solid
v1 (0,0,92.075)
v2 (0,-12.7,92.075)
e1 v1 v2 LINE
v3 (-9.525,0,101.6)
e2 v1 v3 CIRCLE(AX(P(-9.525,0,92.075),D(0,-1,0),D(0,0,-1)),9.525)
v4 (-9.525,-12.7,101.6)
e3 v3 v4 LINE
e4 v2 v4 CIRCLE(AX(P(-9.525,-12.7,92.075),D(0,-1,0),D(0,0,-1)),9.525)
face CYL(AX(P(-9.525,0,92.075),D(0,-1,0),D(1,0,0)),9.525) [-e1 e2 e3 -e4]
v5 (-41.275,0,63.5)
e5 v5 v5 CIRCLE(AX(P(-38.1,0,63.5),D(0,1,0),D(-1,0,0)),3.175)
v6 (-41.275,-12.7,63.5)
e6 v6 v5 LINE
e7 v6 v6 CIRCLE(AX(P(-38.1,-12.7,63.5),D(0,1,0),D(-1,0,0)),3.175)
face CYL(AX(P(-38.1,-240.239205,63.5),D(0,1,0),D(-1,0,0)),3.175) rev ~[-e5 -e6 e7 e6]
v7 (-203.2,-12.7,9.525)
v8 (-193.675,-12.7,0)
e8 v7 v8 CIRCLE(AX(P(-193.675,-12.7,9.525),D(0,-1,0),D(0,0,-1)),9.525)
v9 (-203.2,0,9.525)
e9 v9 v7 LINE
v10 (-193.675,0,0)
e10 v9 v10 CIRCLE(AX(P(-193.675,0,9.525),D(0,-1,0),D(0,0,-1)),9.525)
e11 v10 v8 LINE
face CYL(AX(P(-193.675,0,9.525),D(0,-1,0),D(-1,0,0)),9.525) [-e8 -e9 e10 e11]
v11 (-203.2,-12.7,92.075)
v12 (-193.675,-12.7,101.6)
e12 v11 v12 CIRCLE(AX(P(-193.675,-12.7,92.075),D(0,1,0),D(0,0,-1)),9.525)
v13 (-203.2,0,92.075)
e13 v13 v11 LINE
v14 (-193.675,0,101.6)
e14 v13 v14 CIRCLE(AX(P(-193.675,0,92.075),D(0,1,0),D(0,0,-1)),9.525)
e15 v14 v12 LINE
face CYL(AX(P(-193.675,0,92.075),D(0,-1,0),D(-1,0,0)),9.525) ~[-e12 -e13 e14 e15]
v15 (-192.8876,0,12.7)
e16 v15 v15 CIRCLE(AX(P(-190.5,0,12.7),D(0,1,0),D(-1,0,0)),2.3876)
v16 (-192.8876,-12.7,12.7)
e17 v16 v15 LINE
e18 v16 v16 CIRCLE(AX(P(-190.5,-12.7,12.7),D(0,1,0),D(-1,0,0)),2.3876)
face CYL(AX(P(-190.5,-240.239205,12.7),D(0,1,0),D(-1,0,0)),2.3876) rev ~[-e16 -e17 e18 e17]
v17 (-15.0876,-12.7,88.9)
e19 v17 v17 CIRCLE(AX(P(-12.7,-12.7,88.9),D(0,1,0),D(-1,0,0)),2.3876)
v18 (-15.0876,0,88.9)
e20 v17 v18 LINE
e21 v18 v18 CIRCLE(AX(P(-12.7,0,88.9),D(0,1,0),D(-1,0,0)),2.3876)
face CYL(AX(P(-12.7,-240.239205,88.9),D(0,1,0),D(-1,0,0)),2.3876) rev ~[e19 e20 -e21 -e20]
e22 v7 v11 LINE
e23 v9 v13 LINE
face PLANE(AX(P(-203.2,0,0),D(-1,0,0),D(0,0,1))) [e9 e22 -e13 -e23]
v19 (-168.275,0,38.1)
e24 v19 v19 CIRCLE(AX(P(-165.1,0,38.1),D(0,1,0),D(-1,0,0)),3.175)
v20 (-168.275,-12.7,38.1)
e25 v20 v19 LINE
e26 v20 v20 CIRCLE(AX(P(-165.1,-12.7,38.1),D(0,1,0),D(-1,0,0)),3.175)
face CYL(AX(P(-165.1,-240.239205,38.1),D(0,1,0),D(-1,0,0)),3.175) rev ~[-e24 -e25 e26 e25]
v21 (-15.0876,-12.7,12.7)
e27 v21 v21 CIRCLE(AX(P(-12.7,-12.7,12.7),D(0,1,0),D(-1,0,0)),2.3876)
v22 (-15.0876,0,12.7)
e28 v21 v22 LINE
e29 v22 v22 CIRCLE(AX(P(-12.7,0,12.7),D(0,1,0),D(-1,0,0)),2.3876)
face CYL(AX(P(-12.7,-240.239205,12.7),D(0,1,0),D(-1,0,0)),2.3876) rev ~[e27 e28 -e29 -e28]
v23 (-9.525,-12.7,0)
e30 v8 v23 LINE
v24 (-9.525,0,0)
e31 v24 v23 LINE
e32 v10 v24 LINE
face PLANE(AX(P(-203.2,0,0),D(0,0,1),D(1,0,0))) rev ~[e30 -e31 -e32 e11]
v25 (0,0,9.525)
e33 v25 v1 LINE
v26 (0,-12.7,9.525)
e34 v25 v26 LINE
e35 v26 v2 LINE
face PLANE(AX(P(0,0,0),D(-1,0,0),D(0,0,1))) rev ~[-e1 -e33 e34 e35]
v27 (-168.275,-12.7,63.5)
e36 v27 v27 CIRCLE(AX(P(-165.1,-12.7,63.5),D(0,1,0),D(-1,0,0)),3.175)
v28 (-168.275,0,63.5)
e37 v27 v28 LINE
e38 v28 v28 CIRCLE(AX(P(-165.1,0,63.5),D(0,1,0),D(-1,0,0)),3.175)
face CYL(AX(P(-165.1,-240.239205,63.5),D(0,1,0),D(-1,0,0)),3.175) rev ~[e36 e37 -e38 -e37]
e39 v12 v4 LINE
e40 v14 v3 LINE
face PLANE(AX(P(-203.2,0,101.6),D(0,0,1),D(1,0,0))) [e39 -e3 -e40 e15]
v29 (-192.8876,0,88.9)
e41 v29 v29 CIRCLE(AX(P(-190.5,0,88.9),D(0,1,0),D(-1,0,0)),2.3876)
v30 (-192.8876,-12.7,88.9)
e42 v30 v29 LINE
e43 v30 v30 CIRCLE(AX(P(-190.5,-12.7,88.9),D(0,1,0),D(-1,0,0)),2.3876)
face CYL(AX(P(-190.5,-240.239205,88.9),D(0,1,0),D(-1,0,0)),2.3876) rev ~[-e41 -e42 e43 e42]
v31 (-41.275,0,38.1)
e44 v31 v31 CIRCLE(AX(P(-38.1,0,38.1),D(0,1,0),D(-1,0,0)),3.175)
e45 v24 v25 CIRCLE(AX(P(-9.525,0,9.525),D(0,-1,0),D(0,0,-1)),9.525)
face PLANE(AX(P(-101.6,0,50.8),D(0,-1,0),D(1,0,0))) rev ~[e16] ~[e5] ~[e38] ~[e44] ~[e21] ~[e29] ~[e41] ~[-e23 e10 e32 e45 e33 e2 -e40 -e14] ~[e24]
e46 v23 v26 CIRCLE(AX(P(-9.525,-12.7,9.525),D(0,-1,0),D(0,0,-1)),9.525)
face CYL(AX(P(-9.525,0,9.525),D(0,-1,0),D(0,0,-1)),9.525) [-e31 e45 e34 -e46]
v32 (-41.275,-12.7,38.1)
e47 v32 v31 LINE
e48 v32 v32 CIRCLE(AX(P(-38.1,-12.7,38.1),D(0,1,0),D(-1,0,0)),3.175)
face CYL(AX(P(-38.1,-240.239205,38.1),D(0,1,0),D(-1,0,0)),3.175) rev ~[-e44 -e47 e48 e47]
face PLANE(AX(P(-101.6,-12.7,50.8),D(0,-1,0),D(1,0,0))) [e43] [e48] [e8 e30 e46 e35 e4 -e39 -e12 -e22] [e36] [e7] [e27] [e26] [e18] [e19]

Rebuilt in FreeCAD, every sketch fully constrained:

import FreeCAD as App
import Part
import Sketcher

V = App.Vector
Q = App.Units.Quantity


def edges_at(feature, points):
    """Names of the edges that pass closest to the given points."""
    edges = feature.Shape.Edges
    near = lambda p: min(range(len(edges)), key=lambda i: edges[i].distToShape(Part.Vertex(*p))[0])
    return sorted({f"Edge{near(p) + 1}" for p in points})

doc = App.newDocument("Part")
params = doc.addObject("Spreadsheet::Sheet", "Params")
for row, (alias, value) in enumerate([
    ("sketch1_width", "8 in"),
    ("sketch1_height", "4 in"),
    ("pad1_length", "0.5 in"),
    ("fillet_radius", "0.375 in"),
    ("sketch2_diameter", "0.188 in"),
    ("hole_diameter", "0.188 in"),
    ("sketch3_diameter", "0.25 in"),
    ("hole2_diameter", "0.25 in"),
], start=1):
    params.set(f"A{row}", alias)
    params.set(f"B{row}", "=" + value)
    params.setAlias(f"B{row}", alias)

body = doc.addObject("PartDesign::Body", "Body")

sketch1 = body.newObject("Sketcher::SketchObject", "Sketch")
sketch1.AttachmentSupport = (doc.getObject("XZ_Plane"), [""])
sketch1.MapMode = "FlatFace"
sketch1.addGeometry([
    Part.LineSegment(V(-203, 102, 0), V(-203, 0, 0)),
    Part.LineSegment(V(-203, 0, 0), V(0, 0, 0)),
    Part.LineSegment(V(0, 0, 0), V(0, 102, 0)),
    Part.LineSegment(V(0, 102, 0), V(-203, 102, 0)),
], False)
sketch1.addConstraint([
    Sketcher.Constraint("Coincident", 0, 2, 1, 1),
    Sketcher.Constraint("Coincident", 1, 2, 2, 1),
    Sketcher.Constraint("Coincident", 2, 2, 3, 1),
    Sketcher.Constraint("Coincident", 3, 2, 0, 1),
    Sketcher.Constraint("Vertical", 0),
    Sketcher.Constraint("Horizontal", 1),
    Sketcher.Constraint("Vertical", 2),
    Sketcher.Constraint("Horizontal", 3),
    Sketcher.Constraint("Coincident", 1, 2, -1, 1),
    Sketcher.Constraint("DistanceX", 1, 1, 1, 2, Q("8 in")),
    Sketcher.Constraint("DistanceY", 0, 2, 0, 1, Q("4 in")),
])
sketch1.setExpression("Constraints[9]", "Params.sketch1_width")
sketch1.setExpression("Constraints[10]", "Params.sketch1_height")
pad1 = body.newObject("PartDesign::Pad", "Pad")
pad1.Profile = sketch1
pad1.setExpression("Length", "Params.pad1_length")
doc.recompute()

fillet = body.newObject("PartDesign::Fillet", "Fillet")
fillet.Base = (pad1, edges_at(pad1, [
    (-203.2, -6.35, 101.6),
    (-203.2, -6.35, 0),
    (0, -6.35, 101.6),
    (0, -6.35, 0),
]))
fillet.setExpression("Radius", "Params.fillet_radius")

sketch2 = body.newObject("Sketcher::SketchObject", "Sketch001")
sketch2.AttachmentSupport = (doc.getObject("XZ_Plane"), [""])
sketch2.MapMode = "FlatFace"
sketch2.AttachmentOffset = App.Placement(V(0, 0, 0.5 * 25.4), App.Rotation())
sketch2.addGeometry([
    Part.Circle(V(-190.5, 88.9, 0), V(0, 0, 1), 2.4),
    Part.Circle(V(-190.5, 12.7, 0), V(0, 0, 1), 2.4),
    Part.Circle(V(-12.7, 12.7, 0), V(0, 0, 1), 2.4),
    Part.Circle(V(-12.7, 88.9, 0), V(0, 0, 1), 2.4),
], False)
sketch2.addConstraint([
    Sketcher.Constraint("Equal", 0, 1),
    Sketcher.Constraint("Equal", 1, 2),
    Sketcher.Constraint("Equal", 2, 3),
    Sketcher.Constraint("Horizontal", 1, 3, 2, 3),
    Sketcher.Constraint("Horizontal", 0, 3, 3, 3),
    Sketcher.Constraint("Vertical", 0, 3, 1, 3),
    Sketcher.Constraint("Vertical", 2, 3, 3, 3),
    Sketcher.Constraint("Diameter", 0, Q("0.188 in")),
    Sketcher.Constraint("DistanceY", 1, 3, 0, 3, Q("3 in")),
    Sketcher.Constraint("DistanceX", 1, 3, 2, 3, Q("7 in")),
    Sketcher.Constraint("DistanceX", 0, 3, -1, 1, Q("7.5 in")),
    Sketcher.Constraint("DistanceY", -1, 1, 0, 3, Q("3.5 in")),
])
sketch2.setExpression("Constraints[7]", "Params.sketch2_diameter")
doc.recompute()
hole = body.newObject("PartDesign::Hole", "Hole")
hole.Profile = sketch2
hole.ThreadType = "None"
hole.setExpression("Diameter", "Params.hole_diameter")
hole.DepthType = "ThroughAll"

sketch3 = body.newObject("Sketcher::SketchObject", "Sketch002")
sketch3.AttachmentSupport = (doc.getObject("XZ_Plane"), [""])
sketch3.MapMode = "FlatFace"
sketch3.AttachmentOffset = App.Placement(V(0, 0, 0.5 * 25.4), App.Rotation())
sketch3.addGeometry([
    Part.Circle(V(-165.1, 63.5, 0), V(0, 0, 1), 3.2),
    Part.Circle(V(-165.1, 38.1, 0), V(0, 0, 1), 3.2),
    Part.Circle(V(-38.1, 38.1, 0), V(0, 0, 1), 3.2),
    Part.Circle(V(-38.1, 63.5, 0), V(0, 0, 1), 3.2),
], False)
sketch3.addConstraint([
    Sketcher.Constraint("Equal", 0, 1),
    Sketcher.Constraint("Equal", 1, 2),
    Sketcher.Constraint("Equal", 2, 3),
    Sketcher.Constraint("Horizontal", 1, 3, 2, 3),
    Sketcher.Constraint("Horizontal", 0, 3, 3, 3),
    Sketcher.Constraint("Vertical", 0, 3, 1, 3),
    Sketcher.Constraint("Vertical", 2, 3, 3, 3),
    Sketcher.Constraint("Diameter", 0, Q("0.25 in")),
    Sketcher.Constraint("DistanceY", 1, 3, 0, 3, Q("1 in")),
    Sketcher.Constraint("DistanceX", 1, 3, 2, 3, Q("5 in")),
    Sketcher.Constraint("DistanceX", 0, 3, -1, 1, Q("6.5 in")),
    Sketcher.Constraint("DistanceY", -1, 1, 0, 3, Q("2.5 in")),
])
sketch3.setExpression("Constraints[7]", "Params.sketch3_diameter")
doc.recompute()
hole2 = body.newObject("PartDesign::Hole", "Hole001")
hole2.Profile = sketch3
hole2.ThreadType = "None"
hole2.setExpression("Diameter", "Params.hole2_diameter")
hole2.DepthType = "ThroughAll"

doc.recompute()
